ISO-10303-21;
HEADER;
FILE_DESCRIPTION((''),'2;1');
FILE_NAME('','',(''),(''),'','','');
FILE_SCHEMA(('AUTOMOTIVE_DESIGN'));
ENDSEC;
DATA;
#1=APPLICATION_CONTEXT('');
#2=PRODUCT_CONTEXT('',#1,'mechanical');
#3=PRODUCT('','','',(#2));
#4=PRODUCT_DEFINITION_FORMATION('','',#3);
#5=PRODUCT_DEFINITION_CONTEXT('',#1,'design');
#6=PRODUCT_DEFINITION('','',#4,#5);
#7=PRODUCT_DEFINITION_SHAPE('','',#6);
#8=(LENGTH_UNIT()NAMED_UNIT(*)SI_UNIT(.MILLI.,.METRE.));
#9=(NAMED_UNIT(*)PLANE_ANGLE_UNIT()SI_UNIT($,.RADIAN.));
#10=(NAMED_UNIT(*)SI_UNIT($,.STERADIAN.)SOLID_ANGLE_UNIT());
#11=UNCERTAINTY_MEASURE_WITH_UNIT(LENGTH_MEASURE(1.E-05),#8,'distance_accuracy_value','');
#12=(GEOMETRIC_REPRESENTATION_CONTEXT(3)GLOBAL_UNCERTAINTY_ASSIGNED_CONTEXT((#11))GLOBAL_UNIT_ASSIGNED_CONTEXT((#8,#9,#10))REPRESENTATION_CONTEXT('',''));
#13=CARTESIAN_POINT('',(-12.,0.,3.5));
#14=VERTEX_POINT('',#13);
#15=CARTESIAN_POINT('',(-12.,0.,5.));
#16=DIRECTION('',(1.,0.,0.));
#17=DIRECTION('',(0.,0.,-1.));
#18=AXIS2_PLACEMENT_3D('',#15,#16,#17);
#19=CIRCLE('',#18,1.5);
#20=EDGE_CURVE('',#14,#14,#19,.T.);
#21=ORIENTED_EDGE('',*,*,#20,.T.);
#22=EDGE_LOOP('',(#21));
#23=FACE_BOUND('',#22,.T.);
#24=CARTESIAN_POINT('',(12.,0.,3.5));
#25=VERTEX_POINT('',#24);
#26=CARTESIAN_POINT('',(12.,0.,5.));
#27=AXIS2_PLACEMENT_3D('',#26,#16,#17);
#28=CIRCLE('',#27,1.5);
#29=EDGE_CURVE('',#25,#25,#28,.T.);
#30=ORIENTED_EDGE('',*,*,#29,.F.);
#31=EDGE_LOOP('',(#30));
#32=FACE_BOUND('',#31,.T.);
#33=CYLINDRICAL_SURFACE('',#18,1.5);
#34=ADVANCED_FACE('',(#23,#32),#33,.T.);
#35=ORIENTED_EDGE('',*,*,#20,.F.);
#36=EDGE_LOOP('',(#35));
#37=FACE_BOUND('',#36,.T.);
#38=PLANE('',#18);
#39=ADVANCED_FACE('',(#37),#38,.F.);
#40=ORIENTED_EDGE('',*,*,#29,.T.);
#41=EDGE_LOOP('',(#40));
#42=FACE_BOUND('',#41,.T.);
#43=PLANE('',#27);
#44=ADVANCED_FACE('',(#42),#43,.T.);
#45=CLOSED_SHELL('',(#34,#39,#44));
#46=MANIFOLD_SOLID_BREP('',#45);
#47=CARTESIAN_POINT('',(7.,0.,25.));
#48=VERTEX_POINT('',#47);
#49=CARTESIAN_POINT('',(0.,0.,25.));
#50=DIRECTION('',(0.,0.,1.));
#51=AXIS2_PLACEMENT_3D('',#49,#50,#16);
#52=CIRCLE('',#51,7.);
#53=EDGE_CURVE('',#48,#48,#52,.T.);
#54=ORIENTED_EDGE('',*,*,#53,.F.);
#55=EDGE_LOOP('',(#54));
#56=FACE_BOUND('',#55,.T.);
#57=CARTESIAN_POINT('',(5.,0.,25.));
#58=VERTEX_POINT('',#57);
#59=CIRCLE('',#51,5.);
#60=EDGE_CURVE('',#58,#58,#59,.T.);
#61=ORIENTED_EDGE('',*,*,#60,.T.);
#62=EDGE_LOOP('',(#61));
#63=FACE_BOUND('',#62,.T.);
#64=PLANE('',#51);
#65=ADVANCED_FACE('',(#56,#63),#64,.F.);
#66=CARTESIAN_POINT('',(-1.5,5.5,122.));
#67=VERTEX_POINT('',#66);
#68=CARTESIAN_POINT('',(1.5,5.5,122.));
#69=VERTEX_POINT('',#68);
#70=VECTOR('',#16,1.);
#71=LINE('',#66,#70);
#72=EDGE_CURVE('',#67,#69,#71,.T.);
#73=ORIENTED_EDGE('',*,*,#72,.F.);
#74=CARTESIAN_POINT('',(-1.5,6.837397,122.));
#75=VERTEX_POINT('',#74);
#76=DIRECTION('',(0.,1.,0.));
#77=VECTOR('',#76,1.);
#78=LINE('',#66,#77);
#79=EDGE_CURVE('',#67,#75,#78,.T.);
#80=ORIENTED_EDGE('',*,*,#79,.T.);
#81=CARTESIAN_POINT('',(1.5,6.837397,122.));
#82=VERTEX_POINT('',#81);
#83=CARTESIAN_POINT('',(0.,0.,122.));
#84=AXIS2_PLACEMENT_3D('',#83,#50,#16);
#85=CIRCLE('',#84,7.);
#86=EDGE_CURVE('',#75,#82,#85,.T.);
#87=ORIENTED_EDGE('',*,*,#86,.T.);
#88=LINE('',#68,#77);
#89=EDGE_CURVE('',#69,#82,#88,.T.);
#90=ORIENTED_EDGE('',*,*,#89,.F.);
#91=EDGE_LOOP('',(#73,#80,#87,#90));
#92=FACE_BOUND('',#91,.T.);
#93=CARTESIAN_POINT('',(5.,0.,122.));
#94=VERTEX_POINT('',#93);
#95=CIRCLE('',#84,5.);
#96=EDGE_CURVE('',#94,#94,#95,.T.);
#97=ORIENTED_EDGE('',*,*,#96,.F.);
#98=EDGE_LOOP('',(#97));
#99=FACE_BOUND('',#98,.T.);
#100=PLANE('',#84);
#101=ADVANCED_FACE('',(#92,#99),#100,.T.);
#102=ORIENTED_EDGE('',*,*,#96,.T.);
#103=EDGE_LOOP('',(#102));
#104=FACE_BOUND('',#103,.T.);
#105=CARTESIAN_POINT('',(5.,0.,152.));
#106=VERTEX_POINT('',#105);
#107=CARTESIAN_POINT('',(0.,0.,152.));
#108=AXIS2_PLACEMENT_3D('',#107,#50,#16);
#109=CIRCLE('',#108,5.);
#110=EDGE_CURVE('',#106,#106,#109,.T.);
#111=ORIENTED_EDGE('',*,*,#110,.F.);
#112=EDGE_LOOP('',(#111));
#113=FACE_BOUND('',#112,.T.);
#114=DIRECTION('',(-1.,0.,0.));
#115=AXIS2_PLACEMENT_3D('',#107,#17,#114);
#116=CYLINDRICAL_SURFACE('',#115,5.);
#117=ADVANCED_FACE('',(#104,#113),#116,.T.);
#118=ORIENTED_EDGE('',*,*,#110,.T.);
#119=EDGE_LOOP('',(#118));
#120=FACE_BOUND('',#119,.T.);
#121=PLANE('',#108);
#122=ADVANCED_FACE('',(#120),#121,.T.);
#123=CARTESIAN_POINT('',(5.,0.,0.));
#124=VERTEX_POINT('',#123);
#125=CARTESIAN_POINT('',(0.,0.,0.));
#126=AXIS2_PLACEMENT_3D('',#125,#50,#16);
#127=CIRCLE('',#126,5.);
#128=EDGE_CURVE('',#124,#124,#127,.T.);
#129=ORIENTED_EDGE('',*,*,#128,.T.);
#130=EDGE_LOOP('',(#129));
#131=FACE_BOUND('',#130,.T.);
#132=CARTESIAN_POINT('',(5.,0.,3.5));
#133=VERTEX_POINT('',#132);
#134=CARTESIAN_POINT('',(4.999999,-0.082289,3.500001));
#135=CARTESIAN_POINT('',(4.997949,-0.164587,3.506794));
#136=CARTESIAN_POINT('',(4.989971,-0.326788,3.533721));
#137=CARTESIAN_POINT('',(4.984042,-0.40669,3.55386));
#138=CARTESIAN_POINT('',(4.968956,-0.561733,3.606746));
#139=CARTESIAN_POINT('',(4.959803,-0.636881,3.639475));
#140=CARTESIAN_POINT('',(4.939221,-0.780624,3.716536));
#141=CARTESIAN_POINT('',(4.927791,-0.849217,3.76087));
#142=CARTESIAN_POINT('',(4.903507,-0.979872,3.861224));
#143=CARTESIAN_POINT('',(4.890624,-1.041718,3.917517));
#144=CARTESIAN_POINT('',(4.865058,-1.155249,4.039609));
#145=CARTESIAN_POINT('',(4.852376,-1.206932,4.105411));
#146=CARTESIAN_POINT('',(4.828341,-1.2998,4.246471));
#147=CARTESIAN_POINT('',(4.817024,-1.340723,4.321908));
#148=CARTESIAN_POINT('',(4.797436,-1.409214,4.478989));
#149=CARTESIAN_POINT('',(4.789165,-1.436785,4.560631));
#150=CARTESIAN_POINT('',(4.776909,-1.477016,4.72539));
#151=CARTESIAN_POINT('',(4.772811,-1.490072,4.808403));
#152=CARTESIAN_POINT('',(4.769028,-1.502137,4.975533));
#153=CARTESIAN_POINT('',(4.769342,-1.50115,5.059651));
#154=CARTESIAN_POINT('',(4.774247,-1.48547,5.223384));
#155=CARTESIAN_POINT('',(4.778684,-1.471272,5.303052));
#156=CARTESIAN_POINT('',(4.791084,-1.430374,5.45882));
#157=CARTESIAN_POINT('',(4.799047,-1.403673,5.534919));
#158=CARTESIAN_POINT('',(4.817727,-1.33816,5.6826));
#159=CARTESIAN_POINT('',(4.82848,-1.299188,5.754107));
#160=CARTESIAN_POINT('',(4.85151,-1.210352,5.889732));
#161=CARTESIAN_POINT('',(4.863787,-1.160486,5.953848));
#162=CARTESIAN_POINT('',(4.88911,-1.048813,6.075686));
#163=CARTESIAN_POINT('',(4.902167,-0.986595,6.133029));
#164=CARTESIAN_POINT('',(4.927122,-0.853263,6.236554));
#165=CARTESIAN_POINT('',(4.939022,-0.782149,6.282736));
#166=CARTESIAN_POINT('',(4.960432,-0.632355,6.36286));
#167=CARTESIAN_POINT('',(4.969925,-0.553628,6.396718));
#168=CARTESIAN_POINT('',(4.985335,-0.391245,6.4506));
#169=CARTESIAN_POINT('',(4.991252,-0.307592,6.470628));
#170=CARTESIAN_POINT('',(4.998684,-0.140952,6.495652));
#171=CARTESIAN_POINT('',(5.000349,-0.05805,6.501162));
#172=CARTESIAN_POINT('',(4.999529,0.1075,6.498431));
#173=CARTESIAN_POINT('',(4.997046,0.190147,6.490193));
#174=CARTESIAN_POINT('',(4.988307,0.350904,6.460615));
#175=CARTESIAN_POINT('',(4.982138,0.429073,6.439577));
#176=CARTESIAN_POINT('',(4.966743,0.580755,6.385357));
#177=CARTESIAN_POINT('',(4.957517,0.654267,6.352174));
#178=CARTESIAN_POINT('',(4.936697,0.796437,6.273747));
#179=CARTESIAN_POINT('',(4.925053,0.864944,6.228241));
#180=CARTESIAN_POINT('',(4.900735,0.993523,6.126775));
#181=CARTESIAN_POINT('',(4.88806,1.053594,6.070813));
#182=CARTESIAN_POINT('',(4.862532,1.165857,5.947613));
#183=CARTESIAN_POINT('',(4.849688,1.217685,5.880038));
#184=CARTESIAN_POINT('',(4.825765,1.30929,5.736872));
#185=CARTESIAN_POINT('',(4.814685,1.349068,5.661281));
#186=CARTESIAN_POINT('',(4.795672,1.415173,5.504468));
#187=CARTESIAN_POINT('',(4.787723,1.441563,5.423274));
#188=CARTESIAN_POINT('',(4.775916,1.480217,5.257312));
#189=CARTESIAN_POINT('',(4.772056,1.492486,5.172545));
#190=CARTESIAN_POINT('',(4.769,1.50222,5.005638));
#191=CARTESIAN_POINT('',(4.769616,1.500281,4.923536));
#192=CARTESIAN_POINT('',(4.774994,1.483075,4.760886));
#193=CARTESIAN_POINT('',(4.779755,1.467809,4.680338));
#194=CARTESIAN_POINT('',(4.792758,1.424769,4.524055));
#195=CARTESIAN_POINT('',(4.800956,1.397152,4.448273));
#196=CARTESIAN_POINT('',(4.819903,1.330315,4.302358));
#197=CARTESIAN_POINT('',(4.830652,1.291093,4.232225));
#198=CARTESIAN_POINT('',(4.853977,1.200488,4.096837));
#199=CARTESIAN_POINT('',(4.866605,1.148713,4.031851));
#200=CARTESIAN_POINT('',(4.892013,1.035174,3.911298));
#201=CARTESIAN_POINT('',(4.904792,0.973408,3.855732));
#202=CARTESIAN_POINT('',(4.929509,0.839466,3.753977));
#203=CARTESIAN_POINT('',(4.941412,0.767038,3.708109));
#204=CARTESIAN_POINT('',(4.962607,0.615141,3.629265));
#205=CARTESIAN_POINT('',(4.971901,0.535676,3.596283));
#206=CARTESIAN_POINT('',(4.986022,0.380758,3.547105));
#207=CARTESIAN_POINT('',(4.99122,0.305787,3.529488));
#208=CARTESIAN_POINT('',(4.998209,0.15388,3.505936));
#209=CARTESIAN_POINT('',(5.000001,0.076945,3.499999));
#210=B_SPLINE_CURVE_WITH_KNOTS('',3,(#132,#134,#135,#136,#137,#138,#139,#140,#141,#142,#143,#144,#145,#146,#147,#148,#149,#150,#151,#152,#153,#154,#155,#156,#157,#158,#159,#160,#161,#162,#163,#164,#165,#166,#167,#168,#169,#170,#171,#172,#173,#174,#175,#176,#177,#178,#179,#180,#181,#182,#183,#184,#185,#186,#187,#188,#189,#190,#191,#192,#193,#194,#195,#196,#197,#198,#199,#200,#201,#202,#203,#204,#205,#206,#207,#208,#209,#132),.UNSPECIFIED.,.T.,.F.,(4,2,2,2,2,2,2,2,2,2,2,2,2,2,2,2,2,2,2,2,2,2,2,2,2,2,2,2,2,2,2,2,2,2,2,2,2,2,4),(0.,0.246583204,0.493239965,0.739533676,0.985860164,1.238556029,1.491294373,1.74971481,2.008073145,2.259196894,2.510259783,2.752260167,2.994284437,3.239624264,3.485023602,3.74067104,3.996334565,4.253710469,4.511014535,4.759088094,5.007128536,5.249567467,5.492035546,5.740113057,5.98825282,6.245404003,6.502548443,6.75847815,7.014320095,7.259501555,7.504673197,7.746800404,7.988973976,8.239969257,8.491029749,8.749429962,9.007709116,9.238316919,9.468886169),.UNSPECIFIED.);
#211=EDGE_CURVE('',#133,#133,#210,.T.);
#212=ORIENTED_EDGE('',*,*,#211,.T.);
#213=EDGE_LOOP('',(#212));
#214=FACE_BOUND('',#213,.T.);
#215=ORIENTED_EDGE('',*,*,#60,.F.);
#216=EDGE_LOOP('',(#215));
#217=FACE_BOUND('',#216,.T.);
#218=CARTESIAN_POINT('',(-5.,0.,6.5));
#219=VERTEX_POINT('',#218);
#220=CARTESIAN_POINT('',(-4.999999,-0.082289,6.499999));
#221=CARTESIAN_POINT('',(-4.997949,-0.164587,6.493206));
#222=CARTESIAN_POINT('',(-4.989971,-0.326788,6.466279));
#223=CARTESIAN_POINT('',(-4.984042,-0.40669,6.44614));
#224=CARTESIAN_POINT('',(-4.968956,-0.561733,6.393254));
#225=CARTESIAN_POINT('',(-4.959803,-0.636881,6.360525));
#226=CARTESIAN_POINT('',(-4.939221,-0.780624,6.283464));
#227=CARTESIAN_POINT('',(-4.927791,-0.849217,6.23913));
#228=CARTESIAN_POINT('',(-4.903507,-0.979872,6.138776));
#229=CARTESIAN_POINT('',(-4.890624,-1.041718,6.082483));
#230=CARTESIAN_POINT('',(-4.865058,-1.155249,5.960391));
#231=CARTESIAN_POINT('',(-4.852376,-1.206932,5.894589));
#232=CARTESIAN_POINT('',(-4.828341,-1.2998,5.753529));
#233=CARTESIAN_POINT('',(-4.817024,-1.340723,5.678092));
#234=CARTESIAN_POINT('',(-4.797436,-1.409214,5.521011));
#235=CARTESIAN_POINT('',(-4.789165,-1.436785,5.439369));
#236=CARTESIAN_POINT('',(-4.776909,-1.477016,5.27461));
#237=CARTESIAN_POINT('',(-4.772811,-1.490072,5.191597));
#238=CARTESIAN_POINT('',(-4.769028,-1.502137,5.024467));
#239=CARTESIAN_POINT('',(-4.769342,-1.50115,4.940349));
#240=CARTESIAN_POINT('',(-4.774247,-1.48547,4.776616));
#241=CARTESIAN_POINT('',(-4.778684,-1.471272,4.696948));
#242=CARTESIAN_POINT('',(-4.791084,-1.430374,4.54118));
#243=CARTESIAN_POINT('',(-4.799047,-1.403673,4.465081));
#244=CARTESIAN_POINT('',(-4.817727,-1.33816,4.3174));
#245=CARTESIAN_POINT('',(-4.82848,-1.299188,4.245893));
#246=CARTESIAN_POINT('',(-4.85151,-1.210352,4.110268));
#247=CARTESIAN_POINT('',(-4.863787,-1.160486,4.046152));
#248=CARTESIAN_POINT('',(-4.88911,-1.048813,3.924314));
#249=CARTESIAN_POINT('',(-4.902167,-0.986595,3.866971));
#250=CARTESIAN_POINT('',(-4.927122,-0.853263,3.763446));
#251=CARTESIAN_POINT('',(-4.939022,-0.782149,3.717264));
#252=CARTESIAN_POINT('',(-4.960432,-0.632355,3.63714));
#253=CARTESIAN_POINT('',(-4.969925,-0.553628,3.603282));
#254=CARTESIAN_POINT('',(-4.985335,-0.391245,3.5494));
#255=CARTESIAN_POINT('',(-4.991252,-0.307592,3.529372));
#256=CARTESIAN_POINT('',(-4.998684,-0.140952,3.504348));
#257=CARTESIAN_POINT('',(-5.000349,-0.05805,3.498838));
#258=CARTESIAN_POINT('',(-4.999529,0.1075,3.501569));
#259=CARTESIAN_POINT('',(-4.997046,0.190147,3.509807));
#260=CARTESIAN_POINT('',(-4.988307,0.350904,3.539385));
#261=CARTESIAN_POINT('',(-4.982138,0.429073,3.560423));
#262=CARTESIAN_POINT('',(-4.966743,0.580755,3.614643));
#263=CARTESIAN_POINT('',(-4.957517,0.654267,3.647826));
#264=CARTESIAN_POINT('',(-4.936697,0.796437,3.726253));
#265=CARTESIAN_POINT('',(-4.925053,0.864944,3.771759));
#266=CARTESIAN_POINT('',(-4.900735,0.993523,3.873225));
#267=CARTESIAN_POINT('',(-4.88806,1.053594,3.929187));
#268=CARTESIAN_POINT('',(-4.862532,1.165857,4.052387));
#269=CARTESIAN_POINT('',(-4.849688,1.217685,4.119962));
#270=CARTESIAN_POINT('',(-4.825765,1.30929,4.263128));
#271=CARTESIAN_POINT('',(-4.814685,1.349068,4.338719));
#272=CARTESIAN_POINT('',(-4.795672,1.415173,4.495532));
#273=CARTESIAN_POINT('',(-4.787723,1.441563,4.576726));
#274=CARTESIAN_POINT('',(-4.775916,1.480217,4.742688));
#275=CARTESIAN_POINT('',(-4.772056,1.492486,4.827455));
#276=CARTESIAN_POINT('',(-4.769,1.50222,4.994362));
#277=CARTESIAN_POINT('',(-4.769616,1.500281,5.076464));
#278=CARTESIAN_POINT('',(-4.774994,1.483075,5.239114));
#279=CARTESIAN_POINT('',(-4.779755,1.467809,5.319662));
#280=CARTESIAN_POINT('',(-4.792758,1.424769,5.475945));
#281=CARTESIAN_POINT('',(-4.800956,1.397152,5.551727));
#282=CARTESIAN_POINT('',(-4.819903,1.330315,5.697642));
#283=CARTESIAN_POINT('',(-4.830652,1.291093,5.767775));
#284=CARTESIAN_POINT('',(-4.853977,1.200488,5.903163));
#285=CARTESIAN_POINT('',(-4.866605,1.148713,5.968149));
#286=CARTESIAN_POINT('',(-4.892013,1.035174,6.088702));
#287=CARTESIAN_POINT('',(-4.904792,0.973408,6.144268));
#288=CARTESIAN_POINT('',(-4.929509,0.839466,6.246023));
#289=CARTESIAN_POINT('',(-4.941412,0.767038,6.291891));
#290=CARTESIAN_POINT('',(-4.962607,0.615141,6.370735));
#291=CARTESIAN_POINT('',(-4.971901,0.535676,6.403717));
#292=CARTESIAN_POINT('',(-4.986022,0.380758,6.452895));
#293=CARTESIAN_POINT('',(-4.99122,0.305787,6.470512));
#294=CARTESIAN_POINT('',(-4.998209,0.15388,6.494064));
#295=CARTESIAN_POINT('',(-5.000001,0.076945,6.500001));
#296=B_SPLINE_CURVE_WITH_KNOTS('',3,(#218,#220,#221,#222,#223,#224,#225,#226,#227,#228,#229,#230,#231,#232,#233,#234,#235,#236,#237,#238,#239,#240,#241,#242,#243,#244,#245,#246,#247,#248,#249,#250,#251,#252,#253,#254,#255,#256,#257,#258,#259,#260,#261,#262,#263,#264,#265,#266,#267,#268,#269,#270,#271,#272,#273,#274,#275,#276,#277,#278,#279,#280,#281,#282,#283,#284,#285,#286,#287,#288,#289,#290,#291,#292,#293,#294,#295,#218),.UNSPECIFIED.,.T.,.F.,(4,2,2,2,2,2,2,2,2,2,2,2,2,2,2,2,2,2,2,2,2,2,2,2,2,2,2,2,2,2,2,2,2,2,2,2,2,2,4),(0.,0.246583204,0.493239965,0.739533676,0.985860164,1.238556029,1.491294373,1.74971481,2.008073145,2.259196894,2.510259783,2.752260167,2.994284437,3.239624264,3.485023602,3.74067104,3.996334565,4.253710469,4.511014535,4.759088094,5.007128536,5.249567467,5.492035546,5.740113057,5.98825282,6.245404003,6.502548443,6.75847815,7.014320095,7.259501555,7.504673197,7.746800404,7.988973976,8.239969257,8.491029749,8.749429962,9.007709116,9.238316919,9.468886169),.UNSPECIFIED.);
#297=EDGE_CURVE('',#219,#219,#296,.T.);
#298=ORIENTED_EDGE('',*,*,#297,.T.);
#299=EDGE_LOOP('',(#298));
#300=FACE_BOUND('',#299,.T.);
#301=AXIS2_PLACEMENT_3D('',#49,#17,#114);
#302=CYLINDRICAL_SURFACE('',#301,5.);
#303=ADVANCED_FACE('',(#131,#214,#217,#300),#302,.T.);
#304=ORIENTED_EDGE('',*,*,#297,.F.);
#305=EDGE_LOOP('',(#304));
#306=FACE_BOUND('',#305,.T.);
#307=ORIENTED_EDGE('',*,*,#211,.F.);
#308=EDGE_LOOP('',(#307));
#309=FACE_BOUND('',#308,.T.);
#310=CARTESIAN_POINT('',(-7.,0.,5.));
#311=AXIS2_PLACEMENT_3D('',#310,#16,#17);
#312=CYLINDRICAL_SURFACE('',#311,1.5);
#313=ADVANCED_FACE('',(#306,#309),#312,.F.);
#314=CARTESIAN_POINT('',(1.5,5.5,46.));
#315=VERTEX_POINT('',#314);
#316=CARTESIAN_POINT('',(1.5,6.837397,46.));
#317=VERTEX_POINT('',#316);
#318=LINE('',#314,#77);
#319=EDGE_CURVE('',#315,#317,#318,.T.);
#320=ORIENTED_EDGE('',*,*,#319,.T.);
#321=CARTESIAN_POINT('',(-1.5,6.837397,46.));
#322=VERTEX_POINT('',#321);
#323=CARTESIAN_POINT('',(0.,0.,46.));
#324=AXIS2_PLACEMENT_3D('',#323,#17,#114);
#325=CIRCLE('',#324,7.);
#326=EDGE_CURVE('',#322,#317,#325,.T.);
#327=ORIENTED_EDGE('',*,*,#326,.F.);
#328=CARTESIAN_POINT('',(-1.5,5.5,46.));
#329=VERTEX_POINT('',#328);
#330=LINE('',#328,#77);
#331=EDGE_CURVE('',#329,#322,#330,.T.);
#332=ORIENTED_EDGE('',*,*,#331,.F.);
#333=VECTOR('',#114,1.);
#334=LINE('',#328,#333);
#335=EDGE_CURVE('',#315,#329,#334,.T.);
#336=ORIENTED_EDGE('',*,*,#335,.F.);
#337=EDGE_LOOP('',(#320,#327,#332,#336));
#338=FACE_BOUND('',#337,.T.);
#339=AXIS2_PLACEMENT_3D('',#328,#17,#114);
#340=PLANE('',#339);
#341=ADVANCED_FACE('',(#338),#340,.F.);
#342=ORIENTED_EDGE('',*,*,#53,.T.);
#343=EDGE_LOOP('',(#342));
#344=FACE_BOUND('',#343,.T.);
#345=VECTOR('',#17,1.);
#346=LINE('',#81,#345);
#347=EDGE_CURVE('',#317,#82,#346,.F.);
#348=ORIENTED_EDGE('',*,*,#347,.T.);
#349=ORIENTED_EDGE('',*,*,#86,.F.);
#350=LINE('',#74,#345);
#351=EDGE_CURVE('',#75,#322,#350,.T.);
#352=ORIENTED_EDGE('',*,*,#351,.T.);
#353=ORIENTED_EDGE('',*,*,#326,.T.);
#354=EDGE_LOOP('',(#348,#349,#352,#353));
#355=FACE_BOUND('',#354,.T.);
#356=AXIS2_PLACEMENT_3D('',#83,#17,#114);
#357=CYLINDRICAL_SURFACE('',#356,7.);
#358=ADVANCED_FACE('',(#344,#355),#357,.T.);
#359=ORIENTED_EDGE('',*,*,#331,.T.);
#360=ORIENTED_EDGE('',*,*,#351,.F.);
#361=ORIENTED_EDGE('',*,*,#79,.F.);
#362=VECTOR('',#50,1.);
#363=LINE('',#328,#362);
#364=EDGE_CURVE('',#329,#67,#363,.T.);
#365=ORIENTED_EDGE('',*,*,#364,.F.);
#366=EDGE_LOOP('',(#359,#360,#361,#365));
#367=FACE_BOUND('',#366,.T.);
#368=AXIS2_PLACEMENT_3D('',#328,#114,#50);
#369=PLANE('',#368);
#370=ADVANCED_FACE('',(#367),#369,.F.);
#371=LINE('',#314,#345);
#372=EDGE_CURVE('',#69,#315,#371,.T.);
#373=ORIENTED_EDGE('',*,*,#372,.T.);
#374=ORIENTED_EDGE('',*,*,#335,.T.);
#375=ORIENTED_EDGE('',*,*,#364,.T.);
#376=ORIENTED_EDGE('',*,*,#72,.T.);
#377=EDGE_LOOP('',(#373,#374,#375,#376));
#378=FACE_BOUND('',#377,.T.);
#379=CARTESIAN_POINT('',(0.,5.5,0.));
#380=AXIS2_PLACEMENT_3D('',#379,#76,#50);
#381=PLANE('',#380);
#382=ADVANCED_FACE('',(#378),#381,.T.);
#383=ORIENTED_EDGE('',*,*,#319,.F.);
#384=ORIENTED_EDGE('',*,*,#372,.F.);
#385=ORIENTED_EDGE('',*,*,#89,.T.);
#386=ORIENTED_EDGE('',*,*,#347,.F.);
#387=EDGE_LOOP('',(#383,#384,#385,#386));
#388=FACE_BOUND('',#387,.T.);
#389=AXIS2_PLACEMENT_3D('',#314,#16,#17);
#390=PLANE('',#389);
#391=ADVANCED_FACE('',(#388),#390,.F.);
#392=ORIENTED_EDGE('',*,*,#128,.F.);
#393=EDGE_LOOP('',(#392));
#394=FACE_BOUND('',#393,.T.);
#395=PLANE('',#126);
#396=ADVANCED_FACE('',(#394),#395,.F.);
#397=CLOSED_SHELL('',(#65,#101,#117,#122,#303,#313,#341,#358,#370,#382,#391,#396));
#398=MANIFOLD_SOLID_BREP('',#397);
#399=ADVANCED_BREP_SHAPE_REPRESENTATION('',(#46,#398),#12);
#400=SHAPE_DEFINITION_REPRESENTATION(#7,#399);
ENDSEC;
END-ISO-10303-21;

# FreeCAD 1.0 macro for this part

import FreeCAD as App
import Part
import Sketcher


def add_polygon(sketch, points):
    """Adds a closed chain of lines whose ends are joined by coincident constraints."""
    first, n = sketch.GeometryCount, len(points)
    for a, b in zip(points, points[1:] + points[:1]):
        sketch.addGeometry(Part.LineSegment(App.Vector(*a, 0), App.Vector(*b, 0)), False)
    for i in range(n):
        sketch.addConstraint(Sketcher.Constraint("Coincident", first + i, 2, first + (i + 1) % n, 1))

doc = App.newDocument("Part")
body = doc.addObject("PartDesign::Body", "Body")

sketch1 = body.newObject("Sketcher::SketchObject", "Sketch")
sketch1.AttachmentSupport = (doc.getObject("XY_Plane"), [""])
sketch1.MapMode = "FlatFace"
sketch1.addGeometry(Part.Circle(App.Vector(0, 0, 0), App.Vector(0, 0, 1), 5), False)
sketch1.addConstraint(Sketcher.Constraint("Coincident", 0, 3, -1, 1))
sketch1.addConstraint(Sketcher.Constraint("Diameter", 0, 10.0))
pad1 = body.newObject("PartDesign::Pad", "Pad")
pad1.Profile = sketch1
pad1.Length = 25

sketch2 = body.newObject("Sketcher::SketchObject", "Sketch001")
sketch2.AttachmentSupport = (doc.getObject("XY_Plane"), [""])
sketch2.MapMode = "FlatFace"
sketch2.AttachmentOffset = App.Placement(App.Vector(0, 0, 25), App.Rotation())
sketch2.addGeometry(Part.Circle(App.Vector(0, 0, 0), App.Vector(0, 0, 1), 7), False)
sketch2.addConstraint(Sketcher.Constraint("Coincident", 0, 3, -1, 1))
sketch2.addConstraint(Sketcher.Constraint("Diameter", 0, 14.0))
pad2 = body.newObject("PartDesign::Pad", "Pad001")
pad2.Profile = sketch2
pad2.Length = 97

sketch3 = body.newObject("Sketcher::SketchObject", "Sketch002")
sketch3.AttachmentSupport = (doc.getObject("XY_Plane"), [""])
sketch3.MapMode = "FlatFace"
sketch3.AttachmentOffset = App.Placement(App.Vector(0, 0, 122), App.Rotation())
sketch3.addGeometry(Part.Circle(App.Vector(0, 0, 0), App.Vector(0, 0, 1), 5), False)
sketch3.addConstraint(Sketcher.Constraint("Coincident", 0, 3, -1, 1))
sketch3.addConstraint(Sketcher.Constraint("Diameter", 0, 10.0))
pad3 = body.newObject("PartDesign::Pad", "Pad002")
pad3.Profile = sketch3
pad3.Length = 30

sketch4 = body.newObject("Sketcher::SketchObject", "Sketch003")
sketch4.AttachmentSupport = (doc.getObject("XZ_Plane"), [""])
sketch4.MapMode = "FlatFace"
sketch4.AttachmentOffset = App.Placement(App.Vector(0, 0, -7), App.Rotation())
add_polygon(sketch4, [(-1.5, 46), (-1.5, 122), (1.5, 122), (1.5, 46)])
sketch4.addConstraint(Sketcher.Constraint("Vertical", 0))
sketch4.addConstraint(Sketcher.Constraint("Horizontal", 1))
sketch4.addConstraint(Sketcher.Constraint("Vertical", 2))
sketch4.addConstraint(Sketcher.Constraint("Horizontal", 3))
sketch4.addConstraint(Sketcher.Constraint("DistanceX", 1, 1, 1, 2, 3.0))
sketch4.addConstraint(Sketcher.Constraint("DistanceY", 0, 1, 0, 2, 76.0))
sketch4.addConstraint(Sketcher.Constraint("DistanceY", -1, 1, 0, 2, 122.0))
sketch4.addConstraint(Sketcher.Constraint("DistanceX", 0, 2, -1, 1, 1.5))
pocket1 = body.newObject("PartDesign::Pocket", "Pocket")
pocket1.Profile = sketch4
pocket1.Length = 1.5
pocket1.Reversed = True

sketch5 = body.newObject("Sketcher::SketchObject", "Sketch004")
sketch5.AttachmentSupport = (doc.getObject("YZ_Plane"), [""])
sketch5.MapMode = "FlatFace"
sketch5.addGeometry(Part.Circle(App.Vector(0, 5, 0), App.Vector(0, 0, 1), 1.5), False)
sketch5.addConstraint(Sketcher.Constraint("PointOnObject", 0, 3, -2))
sketch5.addConstraint(Sketcher.Constraint("Diameter", 0, 3.0))
sketch5.addConstraint(Sketcher.Constraint("DistanceY", -1, 1, 0, 3, 5.0))
pocket2 = body.newObject("PartDesign::Pocket", "Pocket001")
pocket2.Profile = sketch5
pocket2.Type = "ThroughAll"
pocket2.Midplane = True
body2 = doc.addObject("PartDesign::Body", "Body001")

sketch6 = body2.newObject("Sketcher::SketchObject", "Sketch005")
sketch6.AttachmentSupport = (doc.getObject("YZ_Plane001"), [""])
sketch6.MapMode = "FlatFace"
sketch6.addGeometry(Part.Circle(App.Vector(0, 5, 0), App.Vector(0, 0, 1), 1.5), False)
sketch6.addConstraint(Sketcher.Constraint("PointOnObject", 0, 3, -2))
sketch6.addConstraint(Sketcher.Constraint("Diameter", 0, 3.0))
sketch6.addConstraint(Sketcher.Constraint("DistanceY", -1, 1, 0, 3, 5.0))
pad4 = body2.newObject("PartDesign::Pad", "Pad003")
pad4.Profile = sketch6
pad4.Type = "TwoLengths"
pad4.Length = 12
pad4.Length2 = 12

doc.recompute()
